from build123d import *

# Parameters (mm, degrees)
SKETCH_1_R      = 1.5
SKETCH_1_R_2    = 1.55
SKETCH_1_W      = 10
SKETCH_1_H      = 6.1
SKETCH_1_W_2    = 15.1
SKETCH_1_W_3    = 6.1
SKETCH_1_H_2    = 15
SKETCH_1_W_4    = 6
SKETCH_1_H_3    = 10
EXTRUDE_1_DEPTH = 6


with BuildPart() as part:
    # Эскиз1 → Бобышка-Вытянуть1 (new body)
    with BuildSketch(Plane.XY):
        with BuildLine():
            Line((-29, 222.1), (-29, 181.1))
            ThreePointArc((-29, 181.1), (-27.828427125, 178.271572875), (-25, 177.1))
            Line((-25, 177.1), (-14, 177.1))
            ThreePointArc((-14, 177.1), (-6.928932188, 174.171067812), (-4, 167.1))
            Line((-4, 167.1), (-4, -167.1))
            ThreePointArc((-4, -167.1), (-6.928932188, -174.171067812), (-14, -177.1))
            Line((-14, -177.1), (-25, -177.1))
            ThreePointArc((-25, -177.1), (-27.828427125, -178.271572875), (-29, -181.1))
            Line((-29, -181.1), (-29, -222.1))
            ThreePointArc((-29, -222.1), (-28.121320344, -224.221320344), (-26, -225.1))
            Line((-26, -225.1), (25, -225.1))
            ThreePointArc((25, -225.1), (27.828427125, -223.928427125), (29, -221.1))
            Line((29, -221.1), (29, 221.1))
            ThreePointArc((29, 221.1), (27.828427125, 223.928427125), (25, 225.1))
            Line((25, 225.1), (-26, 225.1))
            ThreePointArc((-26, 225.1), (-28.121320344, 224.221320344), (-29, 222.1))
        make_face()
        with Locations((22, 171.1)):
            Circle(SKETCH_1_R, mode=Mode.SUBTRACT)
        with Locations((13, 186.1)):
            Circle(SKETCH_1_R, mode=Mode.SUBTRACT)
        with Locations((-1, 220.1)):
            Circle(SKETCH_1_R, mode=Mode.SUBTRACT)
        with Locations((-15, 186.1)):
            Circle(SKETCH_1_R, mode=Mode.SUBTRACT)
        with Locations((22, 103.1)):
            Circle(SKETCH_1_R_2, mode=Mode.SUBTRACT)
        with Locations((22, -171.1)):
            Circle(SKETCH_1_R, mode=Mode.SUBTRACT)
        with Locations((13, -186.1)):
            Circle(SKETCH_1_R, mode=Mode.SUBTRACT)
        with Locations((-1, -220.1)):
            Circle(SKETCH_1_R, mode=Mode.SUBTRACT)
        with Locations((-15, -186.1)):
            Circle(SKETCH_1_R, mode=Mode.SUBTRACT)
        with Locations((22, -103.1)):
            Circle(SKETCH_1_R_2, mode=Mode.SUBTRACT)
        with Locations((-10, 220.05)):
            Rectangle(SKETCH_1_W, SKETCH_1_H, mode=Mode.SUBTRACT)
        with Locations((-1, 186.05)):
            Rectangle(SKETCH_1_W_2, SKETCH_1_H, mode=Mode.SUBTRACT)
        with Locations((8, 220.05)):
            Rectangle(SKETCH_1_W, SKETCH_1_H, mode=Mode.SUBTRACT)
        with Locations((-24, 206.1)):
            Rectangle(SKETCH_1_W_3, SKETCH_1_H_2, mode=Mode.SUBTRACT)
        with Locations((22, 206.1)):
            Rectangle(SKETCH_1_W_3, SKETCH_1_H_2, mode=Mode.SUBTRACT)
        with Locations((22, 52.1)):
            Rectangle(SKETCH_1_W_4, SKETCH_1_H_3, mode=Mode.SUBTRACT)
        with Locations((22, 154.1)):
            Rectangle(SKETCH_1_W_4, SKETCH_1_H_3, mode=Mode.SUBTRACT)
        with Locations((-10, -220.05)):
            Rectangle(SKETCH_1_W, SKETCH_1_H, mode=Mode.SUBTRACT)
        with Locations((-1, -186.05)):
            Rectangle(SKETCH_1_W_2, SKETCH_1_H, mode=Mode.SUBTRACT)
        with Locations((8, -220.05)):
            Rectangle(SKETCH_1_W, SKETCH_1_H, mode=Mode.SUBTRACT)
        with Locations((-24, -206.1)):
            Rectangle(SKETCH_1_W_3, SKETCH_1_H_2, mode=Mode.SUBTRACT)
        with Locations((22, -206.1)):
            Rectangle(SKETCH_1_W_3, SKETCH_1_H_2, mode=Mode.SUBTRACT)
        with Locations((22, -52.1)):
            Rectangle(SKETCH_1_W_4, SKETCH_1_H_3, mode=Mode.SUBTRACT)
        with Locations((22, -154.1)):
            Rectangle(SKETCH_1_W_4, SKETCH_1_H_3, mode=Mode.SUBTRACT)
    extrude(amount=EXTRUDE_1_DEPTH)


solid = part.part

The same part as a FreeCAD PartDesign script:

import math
import FreeCAD as App
import Part
import Sketcher

V = App.Vector
Q = App.Units.Quantity

doc = App.newDocument("Part")
body = doc.addObject("PartDesign::Body", "Body")

sketch1 = body.newObject("Sketcher::SketchObject", "Sketch")
sketch1.AttachmentSupport = (doc.getObject("XY_Plane"), [""])
sketch1.MapMode = "FlatFace"
sketch1.addGeometry([
    Part.LineSegment(V(-29, 222.1, 0), V(-29, 181.1, 0)),
    Part.ArcOfCircle(Part.Circle(V(-25, 181.1, 0), V(0, 0, 1), 4), math.radians(180), math.radians(270)),
    Part.LineSegment(V(-25, 177.1, 0), V(-14, 177.1, 0)),
    Part.ArcOfCircle(Part.Circle(V(-14, 167.1, 0), V(0, 0, 1), 10), math.radians(0), math.radians(90)),
    Part.LineSegment(V(-4, 167.1, 0), V(-4, -167.1, 0)),
    Part.ArcOfCircle(Part.Circle(V(-14, -167.1, 0), V(0, 0, 1), 10), math.radians(-90), math.radians(0)),
    Part.LineSegment(V(-14, -177.1, 0), V(-25, -177.1, 0)),
    Part.ArcOfCircle(Part.Circle(V(-25, -181.1, 0), V(0, 0, 1), 4), math.radians(90), math.radians(180)),
    Part.LineSegment(V(-29, -181.1, 0), V(-29, -222.1, 0)),
    Part.ArcOfCircle(Part.Circle(V(-26, -222.1, 0), V(0, 0, 1), 3), math.radians(180), math.radians(270)),
    Part.LineSegment(V(-26, -225.1, 0), V(25, -225.1, 0)),
    Part.ArcOfCircle(Part.Circle(V(25, -221.1, 0), V(0, 0, 1), 4), math.radians(-90), math.radians(0)),
    Part.LineSegment(V(29, -221.1, 0), V(29, 221.1, 0)),
    Part.ArcOfCircle(Part.Circle(V(25, 221.1, 0), V(0, 0, 1), 4), math.radians(0), math.radians(90)),
    Part.LineSegment(V(25, 225.1, 0), V(-26, 225.1, 0)),
    Part.ArcOfCircle(Part.Circle(V(-26, 222.1, 0), V(0, 0, 1), 3), math.radians(90), math.radians(180)),
    Part.LineSegment(V(-20.9, -213.6, 0), V(-27.1, -213.6, 0)),
    Part.LineSegment(V(-27.1, -213.6, 0), V(-27.1, -198.6, 0)),
    Part.LineSegment(V(-27.1, -198.6, 0), V(-20.9, -198.6, 0)),
    Part.LineSegment(V(-20.9, -198.6, 0), V(-20.9, -213.6, 0)),
    Part.Circle(V(-15, -186.1, 0), V(0, 0, 1), 1.5),
    Part.LineSegment(V(-5, -223.1, 0), V(-15, -223.1, 0)),
    Part.LineSegment(V(-15, -223.1, 0), V(-15, -217, 0)),
    Part.LineSegment(V(-15, -217, 0), V(-5, -217, 0)),
    Part.LineSegment(V(-5, -217, 0), V(-5, -223.1, 0)),
    Part.Circle(V(-1, -220.1, 0), V(0, 0, 1), 1.5),
    Part.LineSegment(V(6.5, -189.1, 0), V(-8.6, -189.1, 0)),
    Part.LineSegment(V(-8.6, -189.1, 0), V(-8.6, -183, 0)),
    Part.LineSegment(V(-8.6, -183, 0), V(6.5, -183, 0)),
    Part.LineSegment(V(6.5, -183, 0), V(6.5, -189.1, 0)),
    Part.LineSegment(V(13, -223.1, 0), V(3, -223.1, 0)),
    Part.LineSegment(V(3, -223.1, 0), V(3, -217, 0)),
    Part.LineSegment(V(3, -217, 0), V(13, -217, 0)),
    Part.LineSegment(V(13, -217, 0), V(13, -223.1, 0)),
    Part.Circle(V(13, -186.1, 0), V(0, 0, 1), 1.5),
    Part.LineSegment(V(25.1, -213.6, 0), V(18.9, -213.6, 0)),
    Part.LineSegment(V(18.9, -213.6, 0), V(18.9, -198.6, 0)),
    Part.LineSegment(V(18.9, -198.6, 0), V(25.1, -198.6, 0)),
    Part.LineSegment(V(25.1, -198.6, 0), V(25.1, -213.6, 0)),
    Part.Circle(V(22, -171.1, 0), V(0, 0, 1), 1.5),
    Part.LineSegment(V(25, -159.1, 0), V(19, -159.1, 0)),
    Part.LineSegment(V(19, -159.1, 0), V(19, -149.1, 0)),
    Part.LineSegment(V(19, -149.1, 0), V(25, -149.1, 0)),
    Part.LineSegment(V(25, -149.1, 0), V(25, -159.1, 0)),
    Part.Circle(V(22, -103.1, 0), V(0, 0, 1), 1.6),
    Part.LineSegment(V(25, -57.1, 0), V(19, -57.1, 0)),
    Part.LineSegment(V(19, -57.1, 0), V(19, -47.1, 0)),
    Part.LineSegment(V(19, -47.1, 0), V(25, -47.1, 0)),
    Part.LineSegment(V(25, -47.1, 0), V(25, -57.1, 0)),
    Part.LineSegment(V(-20.9, 198.6, 0), V(-27.1, 198.6, 0)),
    Part.LineSegment(V(-27.1, 198.6, 0), V(-27.1, 213.6, 0)),
    Part.LineSegment(V(-27.1, 213.6, 0), V(-20.9, 213.6, 0)),
    Part.LineSegment(V(-20.9, 213.6, 0), V(-20.9, 198.6, 0)),
    Part.Circle(V(-15, 186.1, 0), V(0, 0, 1), 1.5),
    Part.LineSegment(V(-5, 217, 0), V(-15, 217, 0)),
    Part.LineSegment(V(-15, 217, 0), V(-15, 223.1, 0)),
    Part.LineSegment(V(-15, 223.1, 0), V(-5, 223.1, 0)),
    Part.LineSegment(V(-5, 223.1, 0), V(-5, 217, 0)),
    Part.LineSegment(V(6.5, 183, 0), V(-8.6, 183, 0)),
    Part.LineSegment(V(-8.6, 183, 0), V(-8.6, 189.1, 0)),
    Part.LineSegment(V(-8.6, 189.1, 0), V(6.5, 189.1, 0)),
    Part.LineSegment(V(6.5, 189.1, 0), V(6.5, 183, 0)),
    Part.Circle(V(-1, 220.1, 0), V(0, 0, 1), 1.5),
    Part.LineSegment(V(25, 47.1, 0), V(19, 47.1, 0)),
    Part.LineSegment(V(19, 47.1, 0), V(19, 57.1, 0)),
    Part.LineSegment(V(19, 57.1, 0), V(25, 57.1, 0)),
    Part.LineSegment(V(25, 57.1, 0), V(25, 47.1, 0)),
    Part.Circle(V(22, 103.1, 0), V(0, 0, 1), 1.6),
    Part.LineSegment(V(13, 217, 0), V(3, 217, 0)),
    Part.LineSegment(V(3, 217, 0), V(3, 223.1, 0)),
    Part.LineSegment(V(3, 223.1, 0), V(13, 223.1, 0)),
    Part.LineSegment(V(13, 223.1, 0), V(13, 217, 0)),
    Part.LineSegment(V(25, 149.1, 0), V(19, 149.1, 0)),
    Part.LineSegment(V(19, 149.1, 0), V(19, 159.1, 0)),
    Part.LineSegment(V(19, 159.1, 0), V(25, 159.1, 0)),
    Part.LineSegment(V(25, 159.1, 0), V(25, 149.1, 0)),
    Part.Circle(V(13, 186.1, 0), V(0, 0, 1), 1.5),
    Part.Circle(V(22, 171.1, 0), V(0, 0, 1), 1.5),
    Part.LineSegment(V(25.1, 198.6, 0), V(18.9, 198.6, 0)),
    Part.LineSegment(V(18.9, 198.6, 0), V(18.9, 213.6, 0)),
    Part.LineSegment(V(18.9, 213.6, 0), V(25.1, 213.6, 0)),
    Part.LineSegment(V(25.1, 213.6, 0), V(25.1, 198.6, 0)),
], False)
sketch1.addConstraint([
    Sketcher.Constraint("Tangent", 0, 2, 1, 1),
    Sketcher.Constraint("Tangent", 1, 2, 2, 1),
    Sketcher.Constraint("Tangent", 2, 2, 3, 2),
    Sketcher.Constraint("Tangent", 3, 1, 4, 1),
    Sketcher.Constraint("Tangent", 4, 2, 5, 2),
    Sketcher.Constraint("Tangent", 5, 1, 6, 1),
    Sketcher.Constraint("Tangent", 6, 2, 7, 1),
    Sketcher.Constraint("Tangent", 7, 2, 8, 1),
    Sketcher.Constraint("Tangent", 8, 2, 9, 1),
    Sketcher.Constraint("Tangent", 9, 2, 10, 1),
    Sketcher.Constraint("Tangent", 10, 2, 11, 1),
    Sketcher.Constraint("Tangent", 11, 2, 12, 1),
    Sketcher.Constraint("Tangent", 12, 2, 13, 1),
    Sketcher.Constraint("Tangent", 13, 2, 14, 1),
    Sketcher.Constraint("Tangent", 14, 2, 15, 1),
    Sketcher.Constraint("Tangent", 15, 2, 0, 1),
    Sketcher.Constraint("Coincident", 16, 2, 17, 1),
    Sketcher.Constraint("Coincident", 17, 2, 18, 1),
    Sketcher.Constraint("Coincident", 18, 2, 19, 1),
    Sketcher.Constraint("Coincident", 19, 2, 16, 1),
    Sketcher.Constraint("Coincident", 21, 2, 22, 1),
    Sketcher.Constraint("Coincident", 22, 2, 23, 1),
    Sketcher.Constraint("Coincident", 23, 2, 24, 1),
    Sketcher.Constraint("Coincident", 24, 2, 21, 1),
    Sketcher.Constraint("Coincident", 26, 2, 27, 1),
    Sketcher.Constraint("Coincident", 27, 2, 28, 1),
    Sketcher.Constraint("Coincident", 28, 2, 29, 1),
    Sketcher.Constraint("Coincident", 29, 2, 26, 1),
    Sketcher.Constraint("Coincident", 30, 2, 31, 1),
    Sketcher.Constraint("Coincident", 31, 2, 32, 1),
    Sketcher.Constraint("Coincident", 32, 2, 33, 1),
    Sketcher.Constraint("Coincident", 33, 2, 30, 1),
    Sketcher.Constraint("Coincident", 35, 2, 36, 1),
    Sketcher.Constraint("Coincident", 36, 2, 37, 1),
    Sketcher.Constraint("Coincident", 37, 2, 38, 1),
    Sketcher.Constraint("Coincident", 38, 2, 35, 1),
    Sketcher.Constraint("Coincident", 40, 2, 41, 1),
    Sketcher.Constraint("Coincident", 41, 2, 42, 1),
    Sketcher.Constraint("Coincident", 42, 2, 43, 1),
    Sketcher.Constraint("Coincident", 43, 2, 40, 1),
    Sketcher.Constraint("Coincident", 45, 2, 46, 1),
    Sketcher.Constraint("Coincident", 46, 2, 47, 1),
    Sketcher.Constraint("Coincident", 47, 2, 48, 1),
    Sketcher.Constraint("Coincident", 48, 2, 45, 1),
    Sketcher.Constraint("Coincident", 49, 2, 50, 1),
    Sketcher.Constraint("Coincident", 50, 2, 51, 1),
    Sketcher.Constraint("Coincident", 51, 2, 52, 1),
    Sketcher.Constraint("Coincident", 52, 2, 49, 1),
    Sketcher.Constraint("Coincident", 54, 2, 55, 1),
    Sketcher.Constraint("Coincident", 55, 2, 56, 1),
    Sketcher.Constraint("Coincident", 56, 2, 57, 1),
    Sketcher.Constraint("Coincident", 57, 2, 54, 1),
    Sketcher.Constraint("Coincident", 58, 2, 59, 1),
    Sketcher.Constraint("Coincident", 59, 2, 60, 1),
    Sketcher.Constraint("Coincident", 60, 2, 61, 1),
    Sketcher.Constraint("Coincident", 61, 2, 58, 1),
    Sketcher.Constraint("Coincident", 63, 2, 64, 1),
    Sketcher.Constraint("Coincident", 64, 2, 65, 1),
    Sketcher.Constraint("Coincident", 65, 2, 66, 1),
    Sketcher.Constraint("Coincident", 66, 2, 63, 1),
    Sketcher.Constraint("Coincident", 68, 2, 69, 1),
    Sketcher.Constraint("Coincident", 69, 2, 70, 1),
    Sketcher.Constraint("Coincident", 70, 2, 71, 1),
    Sketcher.Constraint("Coincident", 71, 2, 68, 1),
    Sketcher.Constraint("Coincident", 72, 2, 73, 1),
    Sketcher.Constraint("Coincident", 73, 2, 74, 1),
    Sketcher.Constraint("Coincident", 74, 2, 75, 1),
    Sketcher.Constraint("Coincident", 75, 2, 72, 1),
    Sketcher.Constraint("Coincident", 78, 2, 79, 1),
    Sketcher.Constraint("Coincident", 79, 2, 80, 1),
    Sketcher.Constraint("Coincident", 80, 2, 81, 1),
    Sketcher.Constraint("Coincident", 81, 2, 78, 1),
    Sketcher.Constraint("Vertical", 0),
    Sketcher.Constraint("Horizontal", 2),
    Sketcher.Constraint("Vertical", 4),
    Sketcher.Constraint("Horizontal", 6),
    Sketcher.Constraint("Vertical", 8),
    Sketcher.Constraint("Horizontal", 10),
    Sketcher.Constraint("Vertical", 12),
    Sketcher.Constraint("Horizontal", 14),
    Sketcher.Constraint("Horizontal", 16),
    Sketcher.Constraint("Vertical", 17),
    Sketcher.Constraint("Horizontal", 18),
    Sketcher.Constraint("Vertical", 19),
    Sketcher.Constraint("Horizontal", 21),
    Sketcher.Constraint("Vertical", 22),
    Sketcher.Constraint("Horizontal", 23),
    Sketcher.Constraint("Vertical", 24),
    Sketcher.Constraint("Horizontal", 26),
    Sketcher.Constraint("Vertical", 27),
    Sketcher.Constraint("Horizontal", 28),
    Sketcher.Constraint("Vertical", 29),
    Sketcher.Constraint("Horizontal", 30),
    Sketcher.Constraint("Vertical", 31),
    Sketcher.Constraint("Horizontal", 32),
    Sketcher.Constraint("Vertical", 33),
    Sketcher.Constraint("Horizontal", 35),
    Sketcher.Constraint("Vertical", 36),
    Sketcher.Constraint("Horizontal", 37),
    Sketcher.Constraint("Vertical", 38),
    Sketcher.Constraint("Horizontal", 40),
    Sketcher.Constraint("Vertical", 41),
    Sketcher.Constraint("Horizontal", 42),
    Sketcher.Constraint("Vertical", 43),
    Sketcher.Constraint("Horizontal", 45),
    Sketcher.Constraint("Vertical", 46),
    Sketcher.Constraint("Horizontal", 47),
    Sketcher.Constraint("Vertical", 48),
    Sketcher.Constraint("Horizontal", 49),
    Sketcher.Constraint("Vertical", 50),
    Sketcher.Constraint("Horizontal", 51),
    Sketcher.Constraint("Vertical", 52),
    Sketcher.Constraint("Horizontal", 54),
    Sketcher.Constraint("Vertical", 55),
    Sketcher.Constraint("Horizontal", 56),
    Sketcher.Constraint("Vertical", 57),
    Sketcher.Constraint("Horizontal", 58),
    Sketcher.Constraint("Vertical", 59),
    Sketcher.Constraint("Horizontal", 60),
    Sketcher.Constraint("Vertical", 61),
    Sketcher.Constraint("Horizontal", 63),
    Sketcher.Constraint("Vertical", 64),
    Sketcher.Constraint("Horizontal", 65),
    Sketcher.Constraint("Vertical", 66),
    Sketcher.Constraint("Horizontal", 68),
    Sketcher.Constraint("Vertical", 69),
    Sketcher.Constraint("Horizontal", 70),
    Sketcher.Constraint("Vertical", 71),
    Sketcher.Constraint("Horizontal", 72),
    Sketcher.Constraint("Vertical", 73),
    Sketcher.Constraint("Horizontal", 74),
    Sketcher.Constraint("Vertical", 75),
    Sketcher.Constraint("Horizontal", 78),
    Sketcher.Constraint("Vertical", 79),
    Sketcher.Constraint("Horizontal", 80),
    Sketcher.Constraint("Vertical", 81),
    Sketcher.Constraint("Equal", 3, 5),
    Sketcher.Constraint("Equal", 1, 7),
    Sketcher.Constraint("Equal", 7, 11),
    Sketcher.Constraint("Equal", 11, 13),
    Sketcher.Constraint("Equal", 9, 15),
    Sketcher.Constraint("Equal", 20, 25),
    Sketcher.Constraint("Equal", 25, 34),
    Sketcher.Constraint("Equal", 34, 39),
    Sketcher.Constraint("Equal", 39, 53),
    Sketcher.Constraint("Equal", 53, 62),
    Sketcher.Constraint("Equal", 44, 67),
    Sketcher.Constraint("Equal", 62, 76),
    Sketcher.Constraint("Equal", 76, 77),
    Sketcher.Constraint("Symmetric", 1, 3, 7, 3, -1),
    Sketcher.Constraint("Symmetric", 20, 3, 53, 3, -1),
    Sketcher.Constraint("Symmetric", 25, 3, 62, 3, -1),
    Sketcher.Constraint("Symmetric", 44, 3, 67, 3, -1),
    Sketcher.Constraint("Symmetric", 34, 3, 76, 3, -1),
    Sketcher.Constraint("Symmetric", 39, 3, 77, 3, -1),
    Sketcher.Constraint("Symmetric", 17, 2, 49, 2, -1),
    Sketcher.Constraint("Symmetric", 19, 2, 51, 2, -1),
    Sketcher.Constraint("Symmetric", 22, 2, 54, 2, -1),
    Sketcher.Constraint("Symmetric", 24, 2, 56, 2, -1),
    Sketcher.Constraint("Symmetric", 27, 2, 58, 2, -1),
    Sketcher.Constraint("Symmetric", 29, 2, 60, 2, -1),
    Sketcher.Constraint("Symmetric", 46, 2, 63, 2, -1),
    Sketcher.Constraint("Symmetric", 48, 2, 65, 2, -1),
    Sketcher.Constraint("Symmetric", 31, 2, 68, 2, -1),
    Sketcher.Constraint("Symmetric", 33, 2, 70, 2, -1),
    Sketcher.Constraint("Symmetric", 41, 2, 72, 2, -1),
    Sketcher.Constraint("Symmetric", 43, 2, 74, 2, -1),
    Sketcher.Constraint("Symmetric", 36, 2, 78, 2, -1),
    Sketcher.Constraint("Symmetric", 38, 2, 80, 2, -1),
    Sketcher.Constraint("Horizontal", 20, 3, 34, 3),
    Sketcher.Constraint("Horizontal", 24, 2, 30, 2),
    Sketcher.Constraint("Horizontal", 23, 2, 31, 2),
    Sketcher.Constraint("Horizontal", 19, 2, 35, 2),
    Sketcher.Constraint("Horizontal", 18, 2, 36, 2),
    Sketcher.Constraint("Vertical", 39, 3, 44, 3),
    Sketcher.Constraint("Vertical", 53, 3, 21, 2),
    Sketcher.Constraint("Vertical", 76, 3, 32, 2),
    Sketcher.Constraint("Vertical", 13, 2, 42, 2),
    Sketcher.Constraint("Vertical", 41, 2, 45, 2),
    Sketcher.Constraint("Vertical", 43, 2, 47, 2),
    Sketcher.Constraint("Equal", 23, 30),
    Sketcher.Constraint("Equal", 18, 35),
    Sketcher.Constraint("Equal", 0, 8),
    Sketcher.Constraint("Equal", 80, 22),
    Sketcher.Constraint("Equal", 24, 27),
    Sketcher.Constraint("Equal", 70, 41),
    Sketcher.Constraint("Equal", 43, 46),
    Sketcher.Constraint("Diameter", 20, Q("3 mm")),
    Sketcher.Constraint("Radius", 1, Q("4 mm")),
    Sketcher.Constraint("Radius", 3, Q("10 mm")),
    Sketcher.Constraint("Radius", 9, Q("3 mm")),
    Sketcher.Constraint("Diameter", 44, Q("3.1 mm")),
    Sketcher.Constraint("DistanceX", 2, 1, 2, 2, Q("11 mm")),
    Sketcher.Constraint("DistanceX", 10, 1, 10, 2, Q("51 mm")),
    Sketcher.Constraint("DistanceX", 21, 2, 21, 1, Q("10 mm")),
    Sketcher.Constraint("DistanceX", 40, 2, 40, 1, Q("6 mm")),
    Sketcher.Constraint("DistanceY", 0, 2, 0, 1, Q("41 mm")),
    Sketcher.Constraint("DistanceY", 17, 1, 17, 2, Q("15 mm")),
    Sketcher.Constraint("DistanceX", 16, 2, 16, 1, Q("6.1 mm")),
    Sketcher.Constraint("DistanceX", 26, 2, 26, 1, Q("15.1 mm")),
    Sketcher.Constraint("DistanceY", 4, 2, 4, 1, Q("334.2 mm")),
    Sketcher.Constraint("DistanceX", 1, 3, -1, 1, Q("25 mm")),
    Sketcher.Constraint("DistanceX", 20, 3, -1, 1, Q("15 mm")),
    Sketcher.Constraint("DistanceX", 25, 3, -1, 1, Q("1 mm")),
    Sketcher.Constraint("DistanceX", -1, 1, 34, 3, Q("13 mm")),
    Sketcher.Constraint("DistanceX", -1, 1, 39, 3, Q("22 mm")),
    Sketcher.Constraint("DistanceY", 22, 2, -1, 1, Q("217 mm")),
    Sketcher.Constraint("DistanceY", 27, 2, -1, 1, Q("183 mm")),
    Sketcher.Constraint("DistanceY", 20, 3, -1, 1, Q("186.1 mm")),
    Sketcher.Constraint("DistanceY", 25, 3, -1, 1, Q("220.1 mm")),
    Sketcher.Constraint("DistanceY", 39, 3, -1, 1, Q("171.1 mm")),
    Sketcher.Constraint("DistanceY", 44, 3, -1, 1, Q("103.1 mm")),
    Sketcher.Constraint("DistanceY", 16, 2, -1, 1, Q("213.6 mm")),
    Sketcher.Constraint("DistanceY", 40, 2, -1, 1, Q("159.1 mm")),
    Sketcher.Constraint("DistanceY", 45, 2, -1, 1, Q("57.1 mm")),
    Sketcher.Constraint("DistanceX", 16, 2, -1, 1, Q("27.05 mm")),
    Sketcher.Constraint("DistanceX", 26, 2, -1, 1, Q("8.55 mm")),
    Sketcher.Constraint("DistanceX", -1, 1, 35, 2, Q("18.95 mm")),
])
pad1 = body.newObject("PartDesign::Pad", "Pad")
pad1.Profile = sketch1
pad1.Length = 6

doc.recompute()
